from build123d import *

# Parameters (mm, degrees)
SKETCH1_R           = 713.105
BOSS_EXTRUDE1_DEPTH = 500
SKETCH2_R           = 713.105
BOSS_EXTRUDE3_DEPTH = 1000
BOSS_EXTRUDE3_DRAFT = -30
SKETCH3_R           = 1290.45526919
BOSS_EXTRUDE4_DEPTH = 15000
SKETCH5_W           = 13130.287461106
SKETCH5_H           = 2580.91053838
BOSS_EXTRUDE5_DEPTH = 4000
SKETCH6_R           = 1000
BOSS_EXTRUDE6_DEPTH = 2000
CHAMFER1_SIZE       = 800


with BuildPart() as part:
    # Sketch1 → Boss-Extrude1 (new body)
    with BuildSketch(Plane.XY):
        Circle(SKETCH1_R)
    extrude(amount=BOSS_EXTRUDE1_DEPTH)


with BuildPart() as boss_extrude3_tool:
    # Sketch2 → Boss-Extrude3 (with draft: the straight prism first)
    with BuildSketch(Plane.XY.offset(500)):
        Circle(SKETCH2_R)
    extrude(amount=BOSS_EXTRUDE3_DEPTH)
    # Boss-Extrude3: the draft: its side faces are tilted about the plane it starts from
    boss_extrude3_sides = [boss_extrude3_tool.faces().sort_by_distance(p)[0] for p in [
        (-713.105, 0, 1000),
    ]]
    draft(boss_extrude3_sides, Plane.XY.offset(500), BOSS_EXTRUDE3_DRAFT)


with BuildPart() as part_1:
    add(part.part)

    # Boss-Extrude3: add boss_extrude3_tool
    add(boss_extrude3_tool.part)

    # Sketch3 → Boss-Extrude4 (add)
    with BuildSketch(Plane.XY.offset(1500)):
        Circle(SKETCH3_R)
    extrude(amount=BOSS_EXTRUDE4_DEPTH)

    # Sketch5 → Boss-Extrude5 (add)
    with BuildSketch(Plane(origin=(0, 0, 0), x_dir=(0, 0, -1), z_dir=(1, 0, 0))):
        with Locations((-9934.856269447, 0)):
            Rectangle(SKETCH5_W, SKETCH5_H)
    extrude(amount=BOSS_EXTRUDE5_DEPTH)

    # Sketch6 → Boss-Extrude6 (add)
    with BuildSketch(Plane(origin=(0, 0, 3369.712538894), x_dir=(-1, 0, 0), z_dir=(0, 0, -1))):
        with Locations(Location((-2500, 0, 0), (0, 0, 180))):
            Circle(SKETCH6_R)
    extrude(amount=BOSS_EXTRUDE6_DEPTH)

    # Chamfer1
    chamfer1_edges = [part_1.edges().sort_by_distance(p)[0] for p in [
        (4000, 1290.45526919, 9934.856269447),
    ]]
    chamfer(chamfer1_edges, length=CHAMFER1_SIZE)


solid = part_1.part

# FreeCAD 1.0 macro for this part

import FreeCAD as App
import Part
import Sketcher
Q = App.Units.Quantity


def edges_at(feature, points):
    """Names of the edges that pass closest to the given points."""
    edges = feature.Shape.Edges
    near = lambda p: min(range(len(edges)), key=lambda i: edges[i].distToShape(Part.Vertex(*p))[0])
    return sorted({f"Edge{near(p) + 1}" for p in points})


def faces_at(feature, points):
    """Names of the faces that lie closest to the given points."""
    faces = feature.Shape.Faces
    near = lambda p: min(range(len(faces)), key=lambda i: faces[i].distToShape(Part.Vertex(*p))[0])
    return sorted({f"Face{near(p) + 1}" for p in points})


def add_polygon(sketch, points):
    """Adds a closed chain of lines whose ends are joined by coincident constraints."""
    first, n = sketch.GeometryCount, len(points)
    for a, b in zip(points, points[1:] + points[:1]):
        sketch.addGeometry(Part.LineSegment(App.Vector(*a, 0), App.Vector(*b, 0)), False)
    for i in range(n):
        sketch.addConstraint(Sketcher.Constraint("Coincident", first + i, 2, first + (i + 1) % n, 1))

doc = App.newDocument("Part")
params = doc.addObject("Spreadsheet::Sheet", "Params")
for row, (alias, value) in enumerate([
    ("sketch1_diameter", "1426.21 mm"),
    ("pad1_length", "500 mm"),
    ("sketch2_diameter", "1426.21 mm"),
    ("pad2_length", "1000 mm"),
    ("draft_angle", "30 deg"),
    ("pad3_length", "15000 mm"),
    ("pad4_length", "4000 mm"),
    ("sketch5_diameter", "2000 mm"),
    ("pad5_length", "2000 mm"),
    ("chamfer_size", "800 mm"),
], start=1):
    params.set(f"A{row}", alias)
    params.set(f"B{row}", "=" + value)
    params.setAlias(f"B{row}", alias)

body = doc.addObject("PartDesign::Body", "Body")

sketch1 = doc.addObject("Sketcher::SketchObject", "Sketch")
body.addObject(sketch1)
sketch1.AttachmentSupport = (doc.XY_Plane, [""])
sketch1.MapMode = "FlatFace"
sketch1.addGeometry(Part.Circle(App.Vector(0, 0, 0), App.Vector(0, 0, 1), 713.105), False)
sketch1.addConstraint([
    Sketcher.Constraint("Coincident", 0, 3, -1, 1),
    Sketcher.Constraint("Diameter", 0, Q("1426.21 mm")),
])
sketch1.setExpression("Constraints[1]", "Params.sketch1_diameter")
pad1 = doc.addObject("PartDesign::Pad", "Pad")
body.addObject(pad1)
pad1.Profile = sketch1
pad1.setExpression("Length", "Params.pad1_length")
body2 = doc.addObject("PartDesign::Body", "Body001")

sketch2 = doc.addObject("Sketcher::SketchObject", "Sketch001")
body2.addObject(sketch2)
sketch2.AttachmentSupport = (doc.getObject("XY_Plane001"), [""])
sketch2.MapMode = "FlatFace"
sketch2.AttachmentOffset = App.Placement(App.Vector(0, 0, 500), App.Rotation())
sketch2.addGeometry(Part.Circle(App.Vector(0, 0, 0), App.Vector(0, 0, 1), 713.105), False)
sketch2.addConstraint([
    Sketcher.Constraint("Coincident", 0, 3, -1, 1),
    Sketcher.Constraint("Diameter", 0, Q("1426.21 mm")),
])
sketch2.setExpression("Constraints[1]", "Params.sketch2_diameter")
pad2 = doc.addObject("PartDesign::Pad", "Pad001")
body2.addObject(pad2)
pad2.Profile = sketch2
pad2.setExpression("Length", "Params.pad2_length")
doc.recompute()

datumplane = doc.addObject("PartDesign::Plane", "DatumPlane")
body2.addObject(datumplane)
datumplane.AttachmentSupport = (doc.getObject("XY_Plane001"), [""])
datumplane.MapMode = "FlatFace"
datumplane.AttachmentOffset = App.Placement(App.Vector(0, 0, 500), App.Rotation())
draft = doc.addObject("PartDesign::Draft", "Draft")
body2.addObject(draft)
draft.Base = (pad2, faces_at(pad2, [(-713.105, 0, 1000)]))
draft.NeutralPlane = (datumplane, [""])
draft.setExpression("Angle", "Params.draft_angle")
draft.Reversed = True
doc.recompute()

boolean = doc.addObject("PartDesign::Boolean", "Boolean")
body.addObject(boolean)
boolean.Type = "Fuse"
boolean.addObjects([body2])

sketch3 = doc.addObject("Sketcher::SketchObject", "Sketch002")
body.addObject(sketch3)
sketch3.AttachmentSupport = (doc.XY_Plane, [""])
sketch3.MapMode = "FlatFace"
sketch3.AttachmentOffset = App.Placement(App.Vector(0, 0, 1500), App.Rotation())
sketch3.addGeometry(Part.Circle(App.Vector(0, 0, 0), App.Vector(0, 0, 1), 1290.455269), False)
sketch3.addConstraint([
    Sketcher.Constraint("Coincident", 0, 3, -1, 1),
    Sketcher.Constraint("Diameter", 0, Q("2580.910538 mm")),
])
pad3 = doc.addObject("PartDesign::Pad", "Pad002")
body.addObject(pad3)
pad3.Profile = sketch3
pad3.setExpression("Length", "Params.pad3_length")

sketch4 = doc.addObject("Sketcher::SketchObject", "Sketch003")
body.addObject(sketch4)
sketch4.AttachmentSupport = (doc.YZ_Plane, [""])
sketch4.MapMode = "FlatFace"
add_polygon(sketch4, [(1290.455269, 16500), (-1290.455269, 16500), (-1290.455269, 3369.712539), (1290.455269, 3369.712539)])
sketch4.addConstraint([
    Sketcher.Constraint("Horizontal", 0),
    Sketcher.Constraint("Vertical", 1),
    Sketcher.Constraint("Horizontal", 2),
    Sketcher.Constraint("Vertical", 3),
    Sketcher.Constraint("DistanceY", -1, 1, 0, 2, Q("16500 mm")),
    Sketcher.Constraint("DistanceX", 0, 2, 0, 1, Q("2580.910538 mm")),
    Sketcher.Constraint("DistanceY", 1, 2, 1, 1, Q("13130.287461 mm")),
    Sketcher.Constraint("DistanceX", 0, 2, -1, 1, Q("1290.455269 mm")),
])
pad4 = doc.addObject("PartDesign::Pad", "Pad003")
body.addObject(pad4)
pad4.Profile = sketch4
pad4.setExpression("Length", "Params.pad4_length")

sketch5 = doc.addObject("Sketcher::SketchObject", "Sketch004")
body.addObject(sketch5)
sketch5.AttachmentSupport = (doc.XY_Plane, [""])
sketch5.MapMode = "FlatFace"
sketch5.AttachmentOffset = App.Placement(App.Vector(0, 0, 3369.712539), App.Rotation())
sketch5.addGeometry(Part.Circle(App.Vector(2500, 0, 0), App.Vector(0, 0, 1), 1000), False)
sketch5.addConstraint([
    Sketcher.Constraint("PointOnObject", 0, 3, -1),
    Sketcher.Constraint("Diameter", 0, Q("2000 mm")),
    Sketcher.Constraint("DistanceX", -1, 1, 0, 3, Q("2500 mm")),
])
sketch5.setExpression("Constraints[1]", "Params.sketch5_diameter")
pad5 = doc.addObject("PartDesign::Pad", "Pad004")
body.addObject(pad5)
pad5.Profile = sketch5
pad5.setExpression("Length", "Params.pad5_length")
pad5.Reversed = True
doc.recompute()

chamfer = doc.addObject("PartDesign::Chamfer", "Chamfer")
body.addObject(chamfer)
chamfer.Base = (pad5, edges_at(pad5, [(4000, 1290.455, 9934.856)]))
chamfer.setExpression("Size", "Params.chamfer_size")

doc.recompute()
